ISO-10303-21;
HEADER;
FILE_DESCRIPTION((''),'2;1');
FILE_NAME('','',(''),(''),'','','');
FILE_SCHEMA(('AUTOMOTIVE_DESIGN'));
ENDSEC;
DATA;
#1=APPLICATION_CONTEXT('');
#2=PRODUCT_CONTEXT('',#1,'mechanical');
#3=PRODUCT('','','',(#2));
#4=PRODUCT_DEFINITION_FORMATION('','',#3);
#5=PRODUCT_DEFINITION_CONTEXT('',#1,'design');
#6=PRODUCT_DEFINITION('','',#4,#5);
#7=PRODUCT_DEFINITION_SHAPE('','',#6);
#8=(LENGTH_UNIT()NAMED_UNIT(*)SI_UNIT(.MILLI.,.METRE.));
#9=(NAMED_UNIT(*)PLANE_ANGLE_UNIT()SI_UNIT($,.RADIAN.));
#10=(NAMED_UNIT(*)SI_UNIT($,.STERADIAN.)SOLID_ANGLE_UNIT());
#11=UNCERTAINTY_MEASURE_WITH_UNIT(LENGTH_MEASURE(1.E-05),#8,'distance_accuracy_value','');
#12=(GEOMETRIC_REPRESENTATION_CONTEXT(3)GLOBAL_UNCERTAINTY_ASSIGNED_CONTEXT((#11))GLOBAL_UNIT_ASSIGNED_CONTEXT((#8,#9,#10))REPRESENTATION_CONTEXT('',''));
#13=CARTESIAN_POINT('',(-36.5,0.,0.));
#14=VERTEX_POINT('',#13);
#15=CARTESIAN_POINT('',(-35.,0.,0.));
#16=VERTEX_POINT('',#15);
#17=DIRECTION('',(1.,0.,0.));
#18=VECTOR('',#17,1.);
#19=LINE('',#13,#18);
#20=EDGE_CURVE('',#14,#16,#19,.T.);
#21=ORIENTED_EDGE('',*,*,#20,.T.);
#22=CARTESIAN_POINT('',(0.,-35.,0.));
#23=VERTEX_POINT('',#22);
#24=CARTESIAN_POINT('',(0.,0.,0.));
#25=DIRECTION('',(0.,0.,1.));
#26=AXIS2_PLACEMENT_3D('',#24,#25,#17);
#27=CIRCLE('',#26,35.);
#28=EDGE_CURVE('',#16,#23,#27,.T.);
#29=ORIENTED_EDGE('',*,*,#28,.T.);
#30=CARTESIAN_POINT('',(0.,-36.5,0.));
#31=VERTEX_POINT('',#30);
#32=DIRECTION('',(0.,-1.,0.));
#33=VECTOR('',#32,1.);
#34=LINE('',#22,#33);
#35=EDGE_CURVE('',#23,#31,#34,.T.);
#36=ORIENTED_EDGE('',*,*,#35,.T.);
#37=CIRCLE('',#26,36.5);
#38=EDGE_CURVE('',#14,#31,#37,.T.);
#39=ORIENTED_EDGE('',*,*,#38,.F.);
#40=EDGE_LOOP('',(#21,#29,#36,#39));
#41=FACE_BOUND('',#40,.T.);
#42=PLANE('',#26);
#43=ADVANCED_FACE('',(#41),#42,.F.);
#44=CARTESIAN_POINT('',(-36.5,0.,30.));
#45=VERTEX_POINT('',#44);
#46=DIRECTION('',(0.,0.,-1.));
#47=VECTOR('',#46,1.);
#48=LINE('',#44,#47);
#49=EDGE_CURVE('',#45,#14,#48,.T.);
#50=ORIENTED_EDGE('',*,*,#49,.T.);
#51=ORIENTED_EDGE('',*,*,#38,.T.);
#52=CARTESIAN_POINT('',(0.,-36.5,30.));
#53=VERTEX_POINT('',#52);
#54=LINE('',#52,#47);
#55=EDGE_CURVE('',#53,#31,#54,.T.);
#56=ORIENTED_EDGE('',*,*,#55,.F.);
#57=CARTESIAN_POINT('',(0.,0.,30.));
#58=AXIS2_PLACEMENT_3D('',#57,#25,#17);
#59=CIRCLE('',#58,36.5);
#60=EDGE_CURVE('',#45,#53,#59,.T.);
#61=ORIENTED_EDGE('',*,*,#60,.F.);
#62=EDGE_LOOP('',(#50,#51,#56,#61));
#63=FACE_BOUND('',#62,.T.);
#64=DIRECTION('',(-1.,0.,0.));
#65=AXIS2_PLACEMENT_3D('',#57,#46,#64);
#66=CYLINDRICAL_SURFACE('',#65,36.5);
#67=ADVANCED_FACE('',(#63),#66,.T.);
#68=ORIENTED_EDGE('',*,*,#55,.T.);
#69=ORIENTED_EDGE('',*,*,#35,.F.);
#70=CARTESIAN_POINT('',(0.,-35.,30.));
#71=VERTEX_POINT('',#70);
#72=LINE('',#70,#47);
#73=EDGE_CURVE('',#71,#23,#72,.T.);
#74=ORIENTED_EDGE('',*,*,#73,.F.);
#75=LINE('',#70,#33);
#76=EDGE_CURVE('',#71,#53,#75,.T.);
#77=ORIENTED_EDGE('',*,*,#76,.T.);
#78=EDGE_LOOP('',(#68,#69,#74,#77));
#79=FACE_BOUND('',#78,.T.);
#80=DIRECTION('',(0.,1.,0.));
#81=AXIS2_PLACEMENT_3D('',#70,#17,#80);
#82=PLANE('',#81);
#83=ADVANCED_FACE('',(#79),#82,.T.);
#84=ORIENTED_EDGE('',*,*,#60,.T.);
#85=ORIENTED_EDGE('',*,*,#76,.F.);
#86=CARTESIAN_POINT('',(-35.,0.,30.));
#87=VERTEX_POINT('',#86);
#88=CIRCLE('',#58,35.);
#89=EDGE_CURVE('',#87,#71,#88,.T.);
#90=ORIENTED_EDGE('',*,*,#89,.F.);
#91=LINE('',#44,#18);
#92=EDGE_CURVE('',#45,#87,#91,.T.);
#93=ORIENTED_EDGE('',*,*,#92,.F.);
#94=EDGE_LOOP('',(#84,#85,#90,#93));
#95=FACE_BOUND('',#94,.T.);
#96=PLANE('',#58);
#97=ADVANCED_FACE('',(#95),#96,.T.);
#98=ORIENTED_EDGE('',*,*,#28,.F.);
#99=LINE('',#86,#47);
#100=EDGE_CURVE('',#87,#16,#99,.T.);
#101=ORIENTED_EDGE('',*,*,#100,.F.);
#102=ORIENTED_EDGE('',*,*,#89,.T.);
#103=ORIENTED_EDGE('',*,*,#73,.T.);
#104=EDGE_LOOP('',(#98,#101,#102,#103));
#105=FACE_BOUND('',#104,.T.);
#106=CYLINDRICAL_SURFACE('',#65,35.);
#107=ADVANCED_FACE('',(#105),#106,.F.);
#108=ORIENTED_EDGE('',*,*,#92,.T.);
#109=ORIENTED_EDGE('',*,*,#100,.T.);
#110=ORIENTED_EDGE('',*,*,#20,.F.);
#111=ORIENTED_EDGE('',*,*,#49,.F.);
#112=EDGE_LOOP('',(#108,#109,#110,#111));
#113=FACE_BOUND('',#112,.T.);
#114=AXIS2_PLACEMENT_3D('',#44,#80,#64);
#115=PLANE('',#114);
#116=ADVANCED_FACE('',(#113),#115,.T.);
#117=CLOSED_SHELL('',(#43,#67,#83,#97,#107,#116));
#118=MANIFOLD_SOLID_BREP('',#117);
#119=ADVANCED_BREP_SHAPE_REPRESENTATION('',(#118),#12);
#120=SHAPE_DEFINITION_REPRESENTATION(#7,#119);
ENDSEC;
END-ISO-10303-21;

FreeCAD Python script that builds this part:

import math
import FreeCAD as App
import Part
import Sketcher

V = App.Vector

doc = App.newDocument("Part")
body = doc.addObject("PartDesign::Body", "Body")

sketch1 = body.newObject("Sketcher::SketchObject", "Sketch")
sketch1.AttachmentSupport = (doc.getObject("XY_Plane"), [""])
sketch1.MapMode = "FlatFace"
sketch1.addGeometry([
    Part.ArcOfCircle(Part.Circle(V(0, 0, 0), V(0, 0, 1), 35), math.radians(180), math.radians(270)),
    Part.LineSegment(V(-35, 0, 0), V(-36.5, 0, 0)),
    Part.ArcOfCircle(Part.Circle(V(0, 0, 0), V(0, 0, 1), 36.5), math.radians(-180), math.radians(-90)),
    Part.LineSegment(V(0, -36.5, 0), V(0, -35, 0)),
], False)
sketch1.addConstraint([
    Sketcher.Constraint("Coincident", 0, 1, 1, 1),
    Sketcher.Constraint("Coincident", 1, 2, 2, 1),
    Sketcher.Constraint("Coincident", 2, 2, 3, 1),
    Sketcher.Constraint("Coincident", 3, 2, 0, 2),
    Sketcher.Constraint("Horizontal", 1),
    Sketcher.Constraint("Vertical", 3),
    Sketcher.Constraint("Coincident", 0, 3, -1, 1),
    Sketcher.Constraint("Coincident", 2, 3, -1, 1),
    Sketcher.Constraint("PointOnObject", 0, 1, -1),
    Sketcher.Constraint("PointOnObject", 2, 2, -2),
    Sketcher.Constraint("Radius", 0, 35.0),
    Sketcher.Constraint("Radius", 2, 36.5),
])
pad1 = body.newObject("PartDesign::Pad", "Pad")
pad1.Profile = sketch1
pad1.Length = 30

doc.recompute()
